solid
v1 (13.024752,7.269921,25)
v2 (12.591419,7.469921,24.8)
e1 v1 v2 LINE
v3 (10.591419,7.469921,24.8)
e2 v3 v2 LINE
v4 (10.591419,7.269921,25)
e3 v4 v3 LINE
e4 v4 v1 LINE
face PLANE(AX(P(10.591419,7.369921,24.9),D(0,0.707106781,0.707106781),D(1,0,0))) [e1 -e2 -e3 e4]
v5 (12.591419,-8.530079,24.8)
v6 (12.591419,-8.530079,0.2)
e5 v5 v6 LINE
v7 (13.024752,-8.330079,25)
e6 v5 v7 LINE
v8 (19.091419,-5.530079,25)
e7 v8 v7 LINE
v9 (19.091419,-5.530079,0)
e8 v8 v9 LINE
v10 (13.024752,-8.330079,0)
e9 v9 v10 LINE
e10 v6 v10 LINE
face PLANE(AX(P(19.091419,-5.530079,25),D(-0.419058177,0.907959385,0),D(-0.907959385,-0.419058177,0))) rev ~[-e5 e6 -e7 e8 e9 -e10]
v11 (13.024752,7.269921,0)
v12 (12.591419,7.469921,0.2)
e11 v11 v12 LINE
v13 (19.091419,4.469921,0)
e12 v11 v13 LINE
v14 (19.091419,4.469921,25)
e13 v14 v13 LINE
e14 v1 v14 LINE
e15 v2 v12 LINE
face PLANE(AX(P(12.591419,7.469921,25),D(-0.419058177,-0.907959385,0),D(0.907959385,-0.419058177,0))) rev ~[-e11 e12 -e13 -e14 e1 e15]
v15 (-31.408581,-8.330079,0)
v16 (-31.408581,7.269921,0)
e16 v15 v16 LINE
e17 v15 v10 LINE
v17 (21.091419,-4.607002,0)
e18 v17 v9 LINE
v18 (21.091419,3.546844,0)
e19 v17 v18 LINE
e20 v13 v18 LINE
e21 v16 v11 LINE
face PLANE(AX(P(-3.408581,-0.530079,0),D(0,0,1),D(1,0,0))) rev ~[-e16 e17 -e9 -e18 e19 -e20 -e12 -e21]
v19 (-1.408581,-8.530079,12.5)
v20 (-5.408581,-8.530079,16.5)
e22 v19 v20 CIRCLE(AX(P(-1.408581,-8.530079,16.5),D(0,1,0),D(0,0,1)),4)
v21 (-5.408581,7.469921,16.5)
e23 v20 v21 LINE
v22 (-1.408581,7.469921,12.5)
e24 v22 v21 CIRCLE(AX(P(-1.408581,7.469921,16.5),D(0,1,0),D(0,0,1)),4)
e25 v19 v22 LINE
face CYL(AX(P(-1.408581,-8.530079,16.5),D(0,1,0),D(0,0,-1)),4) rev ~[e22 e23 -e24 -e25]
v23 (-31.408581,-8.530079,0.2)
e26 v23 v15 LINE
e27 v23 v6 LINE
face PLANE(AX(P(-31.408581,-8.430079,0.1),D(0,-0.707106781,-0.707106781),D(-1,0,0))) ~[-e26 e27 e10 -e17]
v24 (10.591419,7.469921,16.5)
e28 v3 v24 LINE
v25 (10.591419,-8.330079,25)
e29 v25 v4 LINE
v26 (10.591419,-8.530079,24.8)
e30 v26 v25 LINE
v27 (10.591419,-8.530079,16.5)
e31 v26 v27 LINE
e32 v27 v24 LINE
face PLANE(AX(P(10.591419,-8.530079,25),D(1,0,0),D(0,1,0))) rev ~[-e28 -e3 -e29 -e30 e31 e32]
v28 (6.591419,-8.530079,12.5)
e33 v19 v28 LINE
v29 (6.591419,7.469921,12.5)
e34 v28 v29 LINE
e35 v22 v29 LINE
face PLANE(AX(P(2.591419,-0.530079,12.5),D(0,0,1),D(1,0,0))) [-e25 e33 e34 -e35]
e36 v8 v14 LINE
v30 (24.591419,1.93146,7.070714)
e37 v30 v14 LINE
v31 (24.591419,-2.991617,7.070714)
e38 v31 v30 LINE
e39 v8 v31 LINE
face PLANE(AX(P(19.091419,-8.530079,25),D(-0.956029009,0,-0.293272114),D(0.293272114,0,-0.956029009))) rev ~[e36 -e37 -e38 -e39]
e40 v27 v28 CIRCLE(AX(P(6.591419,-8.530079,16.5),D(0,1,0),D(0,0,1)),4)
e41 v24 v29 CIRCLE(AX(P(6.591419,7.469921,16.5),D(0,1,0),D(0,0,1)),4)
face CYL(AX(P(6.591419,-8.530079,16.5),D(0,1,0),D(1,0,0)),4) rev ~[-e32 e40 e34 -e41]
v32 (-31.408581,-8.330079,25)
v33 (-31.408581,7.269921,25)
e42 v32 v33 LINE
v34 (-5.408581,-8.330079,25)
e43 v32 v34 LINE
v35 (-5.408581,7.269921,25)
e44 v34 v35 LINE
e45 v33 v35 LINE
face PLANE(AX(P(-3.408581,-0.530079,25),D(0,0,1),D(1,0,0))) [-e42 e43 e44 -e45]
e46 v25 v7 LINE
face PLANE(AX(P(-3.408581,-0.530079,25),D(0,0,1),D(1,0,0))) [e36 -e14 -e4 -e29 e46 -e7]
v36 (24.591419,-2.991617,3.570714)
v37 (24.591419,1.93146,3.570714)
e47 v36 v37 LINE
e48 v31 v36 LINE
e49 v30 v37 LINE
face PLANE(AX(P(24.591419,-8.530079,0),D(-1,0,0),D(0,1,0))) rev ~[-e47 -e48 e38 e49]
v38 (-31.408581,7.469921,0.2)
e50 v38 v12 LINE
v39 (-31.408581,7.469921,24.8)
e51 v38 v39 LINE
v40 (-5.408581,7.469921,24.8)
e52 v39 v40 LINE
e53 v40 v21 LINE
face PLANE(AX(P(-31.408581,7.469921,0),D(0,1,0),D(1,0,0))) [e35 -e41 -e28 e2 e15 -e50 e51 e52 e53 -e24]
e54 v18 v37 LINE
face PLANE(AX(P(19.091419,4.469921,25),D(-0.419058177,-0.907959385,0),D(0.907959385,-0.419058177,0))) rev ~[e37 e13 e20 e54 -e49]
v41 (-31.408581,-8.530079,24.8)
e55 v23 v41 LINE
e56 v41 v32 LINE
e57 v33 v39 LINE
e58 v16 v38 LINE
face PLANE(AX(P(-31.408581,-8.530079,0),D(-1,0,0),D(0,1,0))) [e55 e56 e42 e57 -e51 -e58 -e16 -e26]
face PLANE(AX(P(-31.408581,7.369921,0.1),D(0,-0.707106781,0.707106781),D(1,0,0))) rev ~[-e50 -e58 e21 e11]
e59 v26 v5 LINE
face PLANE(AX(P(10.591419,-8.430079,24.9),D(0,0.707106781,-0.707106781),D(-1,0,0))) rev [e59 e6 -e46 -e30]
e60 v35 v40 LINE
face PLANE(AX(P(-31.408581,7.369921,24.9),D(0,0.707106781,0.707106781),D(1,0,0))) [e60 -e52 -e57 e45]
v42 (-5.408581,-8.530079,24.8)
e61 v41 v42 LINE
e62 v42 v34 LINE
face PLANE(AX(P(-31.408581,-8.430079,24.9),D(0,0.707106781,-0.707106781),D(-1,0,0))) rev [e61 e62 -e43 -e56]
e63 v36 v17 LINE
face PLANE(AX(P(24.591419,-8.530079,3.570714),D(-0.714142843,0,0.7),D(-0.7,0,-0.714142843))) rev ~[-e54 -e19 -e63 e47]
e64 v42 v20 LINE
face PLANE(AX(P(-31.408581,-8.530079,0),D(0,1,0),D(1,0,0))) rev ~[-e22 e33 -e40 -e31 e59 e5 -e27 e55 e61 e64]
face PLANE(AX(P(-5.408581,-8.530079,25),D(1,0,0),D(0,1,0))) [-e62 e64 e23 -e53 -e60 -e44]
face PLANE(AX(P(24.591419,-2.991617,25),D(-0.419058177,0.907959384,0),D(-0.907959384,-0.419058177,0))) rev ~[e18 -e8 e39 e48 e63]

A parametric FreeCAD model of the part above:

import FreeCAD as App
import Part
import Sketcher
from FreeCAD import Vector


def edges_at(feature, points):
    """Names of the edges that pass closest to the given points."""
    edges = feature.Shape.Edges
    near = lambda p: min(range(len(edges)), key=lambda i: edges[i].distToShape(Part.Vertex(*p))[0])
    return sorted({f"Edge{near(p) + 1}" for p in points})


def add_polygon(sketch, points):
    """Adds a closed chain of lines whose ends are joined by coincident constraints."""
    first, n = sketch.GeometryCount, len(points)
    for a, b in zip(points, points[1:] + points[:1]):
        sketch.addGeometry(Part.LineSegment(App.Vector(*a, 0), App.Vector(*b, 0)), False)
    for i in range(n):
        sketch.addConstraint(Sketcher.Constraint("Coincident", first + i, 2, first + (i + 1) % n, 1))

doc = App.newDocument("Part")
body = doc.addObject("PartDesign::Body", "Body")

# Sketch on XY plane
sketch1 = body.newObject("Sketcher::SketchObject", "Sketch")
sketch1.AttachmentSupport = (doc.getObject("XY_Plane"), [""])
sketch1.MapMode = "FlatFace"
add_polygon(sketch1, [(-31, 7), (-31, -9), (25, -9), (25, 7)])  # lines 0-3
sketch1.addConstraint(Sketcher.Constraint("Vertical", 0))
sketch1.addConstraint(Sketcher.Constraint("Horizontal", 1))
sketch1.addConstraint(Sketcher.Constraint("Vertical", 2))
sketch1.addConstraint(Sketcher.Constraint("Horizontal", 3))
sketch1.addConstraint(Sketcher.Constraint("DistanceX", 1, 1, 1, 2, 56.0))
sketch1.addConstraint(Sketcher.Constraint("DistanceY", 0, 2, 0, 1, 16.0))
sketch1.addConstraint(Sketcher.Constraint("DistanceX", 0, 2, -1, 1, 31.408581))
sketch1.addConstraint(Sketcher.Constraint("DistanceY", 0, 2, -1, 1, 8.530079))
pad1 = body.newObject("PartDesign::Pad", "Pad")
pad1.Profile = sketch1
pad1.Length = 25

# Sketch on XY plane
sketch2 = body.newObject("Sketcher::SketchObject", "Sketch001")
sketch2.AttachmentSupport = (doc.getObject("XY_Plane"), [""])
sketch2.MapMode = "FlatFace"
sketch2.AttachmentOffset = App.Placement(Vector(0, 0, 25), App.Rotation())
add_polygon(sketch2, [(-5, 7), (-5, -9), (11, -9), (11, 7)])  # lines 0-3
sketch2.addConstraint(Sketcher.Constraint("Vertical", 0))
sketch2.addConstraint(Sketcher.Constraint("Horizontal", 1))
sketch2.addConstraint(Sketcher.Constraint("Vertical", 2))
sketch2.addConstraint(Sketcher.Constraint("Horizontal", 3))
sketch2.addConstraint(Sketcher.Constraint("Equal", 3, 0))
sketch2.addConstraint(Sketcher.Constraint("DistanceX", 1, 1, 1, 2, 16.0))
sketch2.addConstraint(Sketcher.Constraint("DistanceX", 0, 2, -1, 1, 5.408581))
sketch2.addConstraint(Sketcher.Constraint("DistanceY", 0, 2, -1, 1, 8.530079))
pocket1 = body.newObject("PartDesign::Pocket", "Pocket")
pocket1.Profile = sketch2
pocket1.Length = 12.5
doc.recompute()

fillet = body.newObject("PartDesign::Fillet", "Fillet")
fillet.Base = (pocket1, edges_at(pocket1, [(10.591, -0.53, 12.5), (-5.409, -0.53, 12.5)]))
fillet.Radius = 4

# Sketch on XZ plane
sketch3 = body.newObject("Sketcher::SketchObject", "Sketch002")
sketch3.AttachmentSupport = (doc.getObject("XZ_Plane"), [""])
sketch3.MapMode = "FlatFace"
sketch3.AttachmentOffset = App.Placement(Vector(0, 0, 8.530079), App.Rotation())
add_polygon(sketch3, [(24.6, 25), (19.1, 25), (24.6, 7.1)])  # lines 0-2
add_polygon(sketch3, [(24.6, 0), (24.6, 3.6), (21.1, 0)])  # lines 3-5
sketch3.addConstraint(Sketcher.Constraint("Horizontal", 0))
sketch3.addConstraint(Sketcher.Constraint("Vertical", 2))
sketch3.addConstraint(Sketcher.Constraint("Vertical", 3))
sketch3.addConstraint(Sketcher.Constraint("Horizontal", 5))
sketch3.addConstraint(Sketcher.Constraint("PointOnObject", 4, 2, -1))
sketch3.addConstraint(Sketcher.Constraint("Vertical", 2, 2, 3, 2))
sketch3.addConstraint(Sketcher.Constraint("Distance", 4, 5.0))
sketch3.addConstraint(Sketcher.Constraint("DistanceX", 0, 2, 0, 1, 5.5))
sketch3.addConstraint(Sketcher.Constraint("DistanceX", 5, 1, 5, 2, 3.5))
sketch3.addConstraint(Sketcher.Constraint("DistanceY", -1, 1, 0, 2, 25.0))
sketch3.addConstraint(Sketcher.Constraint("DistanceY", 3, 2, 1, 2, 3.5))
sketch3.addConstraint(Sketcher.Constraint("DistanceX", -1, 1, 0, 2, 19.091419))
pocket2 = body.newObject("PartDesign::Pocket", "Pocket001")
pocket2.Profile = sketch3
pocket2.Length = 25

# Sketch on XY plane
sketch4 = body.newObject("Sketcher::SketchObject", "Sketch003")
sketch4.AttachmentSupport = (doc.getObject("XY_Plane"), [""])
sketch4.MapMode = "FlatFace"
sketch4.AttachmentOffset = App.Placement(Vector(0, 0, 25), App.Rotation())
add_polygon(sketch4, [(13, 7), (19, 4), (25, 2), (25, 7)])  # lines 0-3
add_polygon(sketch4, [(19, -6), (13, -9), (25, -9), (25, -3)])  # lines 4-7
sketch4.addConstraint(Sketcher.Constraint("Vertical", 2))
sketch4.addConstraint(Sketcher.Constraint("Horizontal", 3))
sketch4.addConstraint(Sketcher.Constraint("Horizontal", 5))
sketch4.addConstraint(Sketcher.Constraint("Vertical", 6))
sketch4.addConstraint(Sketcher.Constraint("Parallel", 0, 1))
sketch4.addConstraint(Sketcher.Constraint("Parallel", 4, 7))
sketch4.addConstraint(Sketcher.Constraint("Vertical", 3, 2, 4, 2))
sketch4.addConstraint(Sketcher.Constraint("Vertical", 2, 2, 5, 2))
sketch4.addConstraint(Sketcher.Constraint("Vertical", 0, 2, 7, 2))
sketch4.addConstraint(Sketcher.Constraint("Equal", 2, 6))
sketch4.addConstraint(Sketcher.Constraint("DistanceX", 3, 2, 3, 1, 12.0))
sketch4.addConstraint(Sketcher.Constraint("DistanceY", 0, 2, 2, 2, 3.0))
sketch4.addConstraint(Sketcher.Constraint("DistanceY", 4, 2, 0, 2, 13.0))
sketch4.addConstraint(Sketcher.Constraint("DistanceX", 0, 2, 1, 2, 5.5))
sketch4.addConstraint(Sketcher.Constraint("DistanceX", -1, 1, 0, 2, 19.091419))
sketch4.addConstraint(Sketcher.Constraint("DistanceY", -1, 1, 0, 2, 4.469921))
pocket3 = body.newObject("PartDesign::Pocket", "Pocket002")
pocket3.Profile = sketch4
pocket3.Length = 25
doc.recompute()

chamfer = body.newObject("PartDesign::Chamfer", "Chamfer")
chamfer.Base = (pocket3, edges_at(pocket3, [
    (-18.409, -8.53, 25),
    (-18.409, 7.47, 25),
    (11.591, 7.47, 25),
    (11.591, -8.53, 25),
    (-9.409, -8.53, 0),
    (-9.409, 7.47, 0),
]))
chamfer.Size = 0.2

doc.recompute()
